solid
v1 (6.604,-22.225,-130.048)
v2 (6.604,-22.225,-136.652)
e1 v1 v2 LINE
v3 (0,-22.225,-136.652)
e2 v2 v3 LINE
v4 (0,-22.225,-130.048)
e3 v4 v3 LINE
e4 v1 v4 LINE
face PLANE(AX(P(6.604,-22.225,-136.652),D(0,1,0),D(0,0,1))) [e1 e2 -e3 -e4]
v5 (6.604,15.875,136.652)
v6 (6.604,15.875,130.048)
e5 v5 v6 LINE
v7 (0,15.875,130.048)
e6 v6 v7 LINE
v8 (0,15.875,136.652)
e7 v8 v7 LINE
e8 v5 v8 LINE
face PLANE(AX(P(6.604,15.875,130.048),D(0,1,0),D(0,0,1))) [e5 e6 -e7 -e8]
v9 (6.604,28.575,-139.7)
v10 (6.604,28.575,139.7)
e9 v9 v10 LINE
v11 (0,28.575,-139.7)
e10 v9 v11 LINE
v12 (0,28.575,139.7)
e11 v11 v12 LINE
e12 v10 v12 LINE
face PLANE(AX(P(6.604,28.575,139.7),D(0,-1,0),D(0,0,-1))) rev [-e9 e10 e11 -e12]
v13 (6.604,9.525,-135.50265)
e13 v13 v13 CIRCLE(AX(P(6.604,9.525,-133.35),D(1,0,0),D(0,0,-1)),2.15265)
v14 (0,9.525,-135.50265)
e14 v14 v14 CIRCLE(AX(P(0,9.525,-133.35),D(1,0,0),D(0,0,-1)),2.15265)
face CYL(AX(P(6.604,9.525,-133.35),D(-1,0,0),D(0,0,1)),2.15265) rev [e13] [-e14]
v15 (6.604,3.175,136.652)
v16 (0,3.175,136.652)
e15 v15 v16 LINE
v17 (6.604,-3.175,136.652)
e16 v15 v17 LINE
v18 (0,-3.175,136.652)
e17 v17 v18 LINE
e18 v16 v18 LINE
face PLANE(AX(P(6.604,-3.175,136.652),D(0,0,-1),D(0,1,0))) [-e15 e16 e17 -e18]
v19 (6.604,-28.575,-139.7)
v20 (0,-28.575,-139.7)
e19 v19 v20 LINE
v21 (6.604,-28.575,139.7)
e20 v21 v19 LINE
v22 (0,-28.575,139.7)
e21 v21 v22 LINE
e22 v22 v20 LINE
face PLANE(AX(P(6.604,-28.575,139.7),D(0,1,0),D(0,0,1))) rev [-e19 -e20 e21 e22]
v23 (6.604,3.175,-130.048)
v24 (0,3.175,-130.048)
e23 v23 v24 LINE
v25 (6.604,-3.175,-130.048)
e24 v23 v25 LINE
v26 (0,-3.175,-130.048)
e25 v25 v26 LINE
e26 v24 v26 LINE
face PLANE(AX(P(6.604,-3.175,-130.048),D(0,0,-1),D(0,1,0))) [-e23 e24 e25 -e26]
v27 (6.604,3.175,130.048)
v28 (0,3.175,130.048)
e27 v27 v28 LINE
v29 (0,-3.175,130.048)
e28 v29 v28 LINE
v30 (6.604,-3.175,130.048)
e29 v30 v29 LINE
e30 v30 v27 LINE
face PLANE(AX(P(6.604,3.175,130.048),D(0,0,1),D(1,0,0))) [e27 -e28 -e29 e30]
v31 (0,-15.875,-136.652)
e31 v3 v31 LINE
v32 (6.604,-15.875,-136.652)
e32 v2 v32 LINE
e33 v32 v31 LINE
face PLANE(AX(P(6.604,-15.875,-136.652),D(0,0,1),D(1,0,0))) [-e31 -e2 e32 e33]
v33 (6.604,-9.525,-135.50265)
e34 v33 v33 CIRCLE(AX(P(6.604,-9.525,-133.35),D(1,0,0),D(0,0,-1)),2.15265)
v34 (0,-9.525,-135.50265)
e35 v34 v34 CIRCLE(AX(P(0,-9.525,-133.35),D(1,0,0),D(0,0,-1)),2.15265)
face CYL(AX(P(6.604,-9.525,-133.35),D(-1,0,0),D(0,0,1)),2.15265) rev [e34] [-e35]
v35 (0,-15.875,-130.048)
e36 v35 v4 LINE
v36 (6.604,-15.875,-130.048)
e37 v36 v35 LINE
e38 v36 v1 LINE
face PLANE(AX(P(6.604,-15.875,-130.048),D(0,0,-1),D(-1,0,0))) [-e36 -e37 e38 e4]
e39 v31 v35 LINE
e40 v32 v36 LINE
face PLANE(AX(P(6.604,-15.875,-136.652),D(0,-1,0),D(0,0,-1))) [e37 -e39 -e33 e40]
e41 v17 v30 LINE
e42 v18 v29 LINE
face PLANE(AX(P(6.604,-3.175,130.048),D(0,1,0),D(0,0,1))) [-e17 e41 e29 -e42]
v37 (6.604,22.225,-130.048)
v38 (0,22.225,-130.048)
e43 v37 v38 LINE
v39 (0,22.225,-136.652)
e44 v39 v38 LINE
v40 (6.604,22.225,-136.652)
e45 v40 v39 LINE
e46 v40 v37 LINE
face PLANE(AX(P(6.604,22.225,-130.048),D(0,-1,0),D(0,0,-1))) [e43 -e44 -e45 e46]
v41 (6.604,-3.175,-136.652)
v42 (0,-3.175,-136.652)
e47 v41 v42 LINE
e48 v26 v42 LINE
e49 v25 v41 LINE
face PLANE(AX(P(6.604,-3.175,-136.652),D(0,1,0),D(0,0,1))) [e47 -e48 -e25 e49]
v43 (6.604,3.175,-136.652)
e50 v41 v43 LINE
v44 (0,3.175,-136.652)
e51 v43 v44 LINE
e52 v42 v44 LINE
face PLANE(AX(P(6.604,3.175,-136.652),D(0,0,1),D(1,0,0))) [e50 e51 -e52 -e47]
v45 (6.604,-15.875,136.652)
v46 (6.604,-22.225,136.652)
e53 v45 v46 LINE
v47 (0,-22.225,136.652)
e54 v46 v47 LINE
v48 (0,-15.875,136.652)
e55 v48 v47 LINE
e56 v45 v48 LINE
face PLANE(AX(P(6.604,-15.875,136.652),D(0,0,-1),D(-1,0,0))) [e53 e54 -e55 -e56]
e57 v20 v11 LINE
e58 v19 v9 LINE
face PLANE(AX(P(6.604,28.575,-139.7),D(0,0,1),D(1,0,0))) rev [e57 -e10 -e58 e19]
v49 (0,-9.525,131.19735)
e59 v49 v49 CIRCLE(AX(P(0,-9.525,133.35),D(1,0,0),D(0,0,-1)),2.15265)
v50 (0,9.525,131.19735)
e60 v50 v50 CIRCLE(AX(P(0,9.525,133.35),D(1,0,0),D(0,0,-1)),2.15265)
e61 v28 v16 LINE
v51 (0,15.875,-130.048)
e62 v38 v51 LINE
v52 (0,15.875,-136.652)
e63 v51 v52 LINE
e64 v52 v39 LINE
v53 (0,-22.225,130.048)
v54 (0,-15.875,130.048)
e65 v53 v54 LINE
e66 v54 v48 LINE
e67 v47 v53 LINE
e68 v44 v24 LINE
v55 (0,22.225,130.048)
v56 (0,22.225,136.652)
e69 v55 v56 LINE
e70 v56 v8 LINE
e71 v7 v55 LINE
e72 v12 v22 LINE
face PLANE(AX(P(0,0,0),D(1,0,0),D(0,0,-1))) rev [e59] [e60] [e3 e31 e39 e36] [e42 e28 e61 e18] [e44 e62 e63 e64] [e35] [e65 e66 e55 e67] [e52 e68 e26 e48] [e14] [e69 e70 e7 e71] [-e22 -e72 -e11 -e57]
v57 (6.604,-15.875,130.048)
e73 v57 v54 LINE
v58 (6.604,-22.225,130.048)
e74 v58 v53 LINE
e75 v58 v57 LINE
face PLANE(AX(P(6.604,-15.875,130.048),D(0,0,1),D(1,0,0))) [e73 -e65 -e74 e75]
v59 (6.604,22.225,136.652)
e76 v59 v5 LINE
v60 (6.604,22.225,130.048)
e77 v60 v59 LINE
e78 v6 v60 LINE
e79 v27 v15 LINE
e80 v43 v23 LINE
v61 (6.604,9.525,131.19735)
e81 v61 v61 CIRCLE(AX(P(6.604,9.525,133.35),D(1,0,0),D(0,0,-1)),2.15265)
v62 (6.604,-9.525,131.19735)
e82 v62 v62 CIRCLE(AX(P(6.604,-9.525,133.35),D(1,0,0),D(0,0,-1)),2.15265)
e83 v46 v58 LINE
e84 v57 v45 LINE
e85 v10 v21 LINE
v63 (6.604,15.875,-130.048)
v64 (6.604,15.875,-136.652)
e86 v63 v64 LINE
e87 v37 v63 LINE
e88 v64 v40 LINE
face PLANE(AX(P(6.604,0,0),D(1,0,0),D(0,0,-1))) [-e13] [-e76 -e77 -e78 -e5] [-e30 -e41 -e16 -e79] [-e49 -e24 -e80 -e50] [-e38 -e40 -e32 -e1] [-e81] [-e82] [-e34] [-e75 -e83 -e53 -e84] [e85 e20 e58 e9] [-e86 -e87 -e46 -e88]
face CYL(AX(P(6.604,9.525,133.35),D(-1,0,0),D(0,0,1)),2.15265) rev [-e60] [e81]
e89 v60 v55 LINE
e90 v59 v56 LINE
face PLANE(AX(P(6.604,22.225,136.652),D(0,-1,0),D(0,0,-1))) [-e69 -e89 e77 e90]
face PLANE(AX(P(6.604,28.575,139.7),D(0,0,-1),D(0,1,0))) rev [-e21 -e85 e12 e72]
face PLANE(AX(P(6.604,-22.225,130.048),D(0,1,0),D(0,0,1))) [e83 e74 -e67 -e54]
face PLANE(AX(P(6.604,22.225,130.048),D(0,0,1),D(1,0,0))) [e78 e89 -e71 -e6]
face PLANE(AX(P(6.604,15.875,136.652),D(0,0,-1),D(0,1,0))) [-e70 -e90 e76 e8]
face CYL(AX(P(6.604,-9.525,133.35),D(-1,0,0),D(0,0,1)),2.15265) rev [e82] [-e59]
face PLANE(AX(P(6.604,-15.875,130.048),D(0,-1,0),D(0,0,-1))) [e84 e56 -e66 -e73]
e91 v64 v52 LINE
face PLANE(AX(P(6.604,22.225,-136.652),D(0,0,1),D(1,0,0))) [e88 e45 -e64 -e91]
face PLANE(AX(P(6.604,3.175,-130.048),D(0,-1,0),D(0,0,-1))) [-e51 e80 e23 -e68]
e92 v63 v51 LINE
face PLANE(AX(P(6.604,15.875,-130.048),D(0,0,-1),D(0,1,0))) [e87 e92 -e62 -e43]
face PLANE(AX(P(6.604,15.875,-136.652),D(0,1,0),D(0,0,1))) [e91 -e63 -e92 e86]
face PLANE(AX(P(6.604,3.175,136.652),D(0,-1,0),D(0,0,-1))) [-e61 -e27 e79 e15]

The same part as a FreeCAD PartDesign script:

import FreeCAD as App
import Part
import Sketcher

V = App.Vector
Q = App.Units.Quantity


def add_polygon(sketch, points):
    """Adds a closed chain of lines whose ends are joined by coincident constraints."""
    first, n = sketch.GeometryCount, len(points)
    for a, b in zip(points, points[1:] + points[:1]):
        sketch.addGeometry(Part.LineSegment(App.Vector(*a, 0), App.Vector(*b, 0)), False)
    for i in range(n):
        sketch.addConstraint(Sketcher.Constraint("Coincident", first + i, 2, first + (i + 1) % n, 1))

doc = App.newDocument("Part")
body = doc.addObject("PartDesign::Body", "Body")

# Sketch on YZ plane
sketch1 = body.newObject("Sketcher::SketchObject", "Sketch")
sketch1.AttachmentSupport = (doc.getObject("YZ_Plane"), [""])
sketch1.MapMode = "FlatFace"
add_polygon(sketch1, [(28.6, 139.7), (-28.6, 139.7), (-28.6, -139.7), (28.6, -139.7)])  # lines 0-3
add_polygon(sketch1, [(-22.2, 130), (-22.2, 136.7), (-15.9, 136.7), (-15.9, 130)])  # lines 4-7
sketch1.addGeometry(Part.Circle(V(-9.5, 133.3, 0), V(0, 0, 1), 2.2), False)  # 8
add_polygon(sketch1, [(-22.2, -136.7), (-22.2, -130), (-15.9, -130), (-15.9, -136.7)])  # lines 9-12
sketch1.addGeometry(Part.Circle(V(-9.5, -133.3, 0), V(0, 0, 1), 2.2), False)  # 13
add_polygon(sketch1, [(-3.2, 130), (-3.2, 136.7), (3.2, 136.7), (3.2, 130)])  # lines 14-17
sketch1.addGeometry(Part.Circle(V(9.5, 133.3, 0), V(0, 0, 1), 2.2), False)  # 18
add_polygon(sketch1, [(15.9, 130), (15.9, 136.7), (22.2, 136.7), (22.2, 130)])  # lines 19-22
add_polygon(sketch1, [(-3.2, -136.7), (-3.2, -130), (3.2, -130), (3.2, -136.7)])  # lines 23-26
sketch1.addGeometry(Part.Circle(V(9.5, -133.3, 0), V(0, 0, 1), 2.2), False)  # 27
add_polygon(sketch1, [(15.9, -136.7), (15.9, -130), (22.2, -130), (22.2, -136.7)])  # lines 28-31
sketch1.addConstraint([
    Sketcher.Constraint("Horizontal", 0),
    Sketcher.Constraint("Vertical", 1),
    Sketcher.Constraint("Horizontal", 2),
    Sketcher.Constraint("Vertical", 3),
    Sketcher.Constraint("Vertical", 4),
    Sketcher.Constraint("Horizontal", 5),
    Sketcher.Constraint("Vertical", 6),
    Sketcher.Constraint("Horizontal", 7),
    Sketcher.Constraint("Vertical", 9),
    Sketcher.Constraint("Horizontal", 10),
    Sketcher.Constraint("Vertical", 11),
    Sketcher.Constraint("Horizontal", 12),
    Sketcher.Constraint("Vertical", 14),
    Sketcher.Constraint("Horizontal", 15),
    Sketcher.Constraint("Vertical", 16),
    Sketcher.Constraint("Horizontal", 17),
    Sketcher.Constraint("Vertical", 19),
    Sketcher.Constraint("Horizontal", 20),
    Sketcher.Constraint("Vertical", 21),
    Sketcher.Constraint("Horizontal", 22),
    Sketcher.Constraint("Vertical", 23),
    Sketcher.Constraint("Horizontal", 24),
    Sketcher.Constraint("Vertical", 25),
    Sketcher.Constraint("Horizontal", 26),
    Sketcher.Constraint("Vertical", 28),
    Sketcher.Constraint("Horizontal", 29),
    Sketcher.Constraint("Vertical", 30),
    Sketcher.Constraint("Horizontal", 31),
    Sketcher.Constraint("Equal", 8, 13),
    Sketcher.Constraint("Equal", 13, 18),
    Sketcher.Constraint("Equal", 18, 27),
    Sketcher.Constraint("Symmetric", 13, 3, 18, 3, -1, 1),
    Sketcher.Constraint("Symmetric", 8, 3, 27, 3, -1, 1),
    Sketcher.Constraint("Symmetric", 0, 2, 2, 2, -1, 1),
    Sketcher.Constraint("Symmetric", 11, 2, 19, 2, -1, 1),
    Sketcher.Constraint("Symmetric", 9, 2, 21, 2, -1, 1),
    Sketcher.Constraint("Symmetric", 16, 2, 23, 2, -1, 1),
    Sketcher.Constraint("Symmetric", 14, 2, 25, 2, -1, 1),
    Sketcher.Constraint("Symmetric", 6, 2, 28, 2, -1, 1),
    Sketcher.Constraint("Symmetric", 4, 2, 30, 2, -1, 1),
    Sketcher.Constraint("Symmetric", 8, 3, 18, 3, -2),
    Sketcher.Constraint("Symmetric", 5, 2, 19, 2, -2),
    Sketcher.Constraint("Symmetric", 7, 2, 21, 2, -2),
    Sketcher.Constraint("Horizontal", 5, 2, 14, 2),
    Sketcher.Constraint("Horizontal", 7, 2, 16, 2),
    Sketcher.Constraint("Vertical", 17, 2, 23, 2),
    Sketcher.Constraint("Equal", 12, 15),
    Sketcher.Constraint("DistanceY", 1, 2, 1, 1, Q("11 in")),
    Sketcher.Constraint("DistanceX", 4, 2, 3, 2, Q("2 in")),
    Sketcher.Constraint("DistanceX", 5, 2, 18, 3, Q("1 in")),
    Sketcher.Constraint("Diameter", 8, Q("0.1695 in")),
    Sketcher.Constraint("DistanceX", 0, 2, 0, 1, Q("2.25 in")),
    Sketcher.Constraint("DistanceX", 5, 1, 5, 2, Q("0.25 in")),
    Sketcher.Constraint("DistanceY", 4, 1, 4, 2, Q("0.26 in")),
    Sketcher.Constraint("DistanceY", 13, 3, 8, 3, Q("10.5 in")),
    Sketcher.Constraint("DistanceY", -1, 1, 4, 2, Q("5.38 in")),
])
pad1 = body.newObject("PartDesign::Pad", "Pad")
pad1.Profile = sketch1
pad1.Length = Q("0.26 in")

doc.recompute()
